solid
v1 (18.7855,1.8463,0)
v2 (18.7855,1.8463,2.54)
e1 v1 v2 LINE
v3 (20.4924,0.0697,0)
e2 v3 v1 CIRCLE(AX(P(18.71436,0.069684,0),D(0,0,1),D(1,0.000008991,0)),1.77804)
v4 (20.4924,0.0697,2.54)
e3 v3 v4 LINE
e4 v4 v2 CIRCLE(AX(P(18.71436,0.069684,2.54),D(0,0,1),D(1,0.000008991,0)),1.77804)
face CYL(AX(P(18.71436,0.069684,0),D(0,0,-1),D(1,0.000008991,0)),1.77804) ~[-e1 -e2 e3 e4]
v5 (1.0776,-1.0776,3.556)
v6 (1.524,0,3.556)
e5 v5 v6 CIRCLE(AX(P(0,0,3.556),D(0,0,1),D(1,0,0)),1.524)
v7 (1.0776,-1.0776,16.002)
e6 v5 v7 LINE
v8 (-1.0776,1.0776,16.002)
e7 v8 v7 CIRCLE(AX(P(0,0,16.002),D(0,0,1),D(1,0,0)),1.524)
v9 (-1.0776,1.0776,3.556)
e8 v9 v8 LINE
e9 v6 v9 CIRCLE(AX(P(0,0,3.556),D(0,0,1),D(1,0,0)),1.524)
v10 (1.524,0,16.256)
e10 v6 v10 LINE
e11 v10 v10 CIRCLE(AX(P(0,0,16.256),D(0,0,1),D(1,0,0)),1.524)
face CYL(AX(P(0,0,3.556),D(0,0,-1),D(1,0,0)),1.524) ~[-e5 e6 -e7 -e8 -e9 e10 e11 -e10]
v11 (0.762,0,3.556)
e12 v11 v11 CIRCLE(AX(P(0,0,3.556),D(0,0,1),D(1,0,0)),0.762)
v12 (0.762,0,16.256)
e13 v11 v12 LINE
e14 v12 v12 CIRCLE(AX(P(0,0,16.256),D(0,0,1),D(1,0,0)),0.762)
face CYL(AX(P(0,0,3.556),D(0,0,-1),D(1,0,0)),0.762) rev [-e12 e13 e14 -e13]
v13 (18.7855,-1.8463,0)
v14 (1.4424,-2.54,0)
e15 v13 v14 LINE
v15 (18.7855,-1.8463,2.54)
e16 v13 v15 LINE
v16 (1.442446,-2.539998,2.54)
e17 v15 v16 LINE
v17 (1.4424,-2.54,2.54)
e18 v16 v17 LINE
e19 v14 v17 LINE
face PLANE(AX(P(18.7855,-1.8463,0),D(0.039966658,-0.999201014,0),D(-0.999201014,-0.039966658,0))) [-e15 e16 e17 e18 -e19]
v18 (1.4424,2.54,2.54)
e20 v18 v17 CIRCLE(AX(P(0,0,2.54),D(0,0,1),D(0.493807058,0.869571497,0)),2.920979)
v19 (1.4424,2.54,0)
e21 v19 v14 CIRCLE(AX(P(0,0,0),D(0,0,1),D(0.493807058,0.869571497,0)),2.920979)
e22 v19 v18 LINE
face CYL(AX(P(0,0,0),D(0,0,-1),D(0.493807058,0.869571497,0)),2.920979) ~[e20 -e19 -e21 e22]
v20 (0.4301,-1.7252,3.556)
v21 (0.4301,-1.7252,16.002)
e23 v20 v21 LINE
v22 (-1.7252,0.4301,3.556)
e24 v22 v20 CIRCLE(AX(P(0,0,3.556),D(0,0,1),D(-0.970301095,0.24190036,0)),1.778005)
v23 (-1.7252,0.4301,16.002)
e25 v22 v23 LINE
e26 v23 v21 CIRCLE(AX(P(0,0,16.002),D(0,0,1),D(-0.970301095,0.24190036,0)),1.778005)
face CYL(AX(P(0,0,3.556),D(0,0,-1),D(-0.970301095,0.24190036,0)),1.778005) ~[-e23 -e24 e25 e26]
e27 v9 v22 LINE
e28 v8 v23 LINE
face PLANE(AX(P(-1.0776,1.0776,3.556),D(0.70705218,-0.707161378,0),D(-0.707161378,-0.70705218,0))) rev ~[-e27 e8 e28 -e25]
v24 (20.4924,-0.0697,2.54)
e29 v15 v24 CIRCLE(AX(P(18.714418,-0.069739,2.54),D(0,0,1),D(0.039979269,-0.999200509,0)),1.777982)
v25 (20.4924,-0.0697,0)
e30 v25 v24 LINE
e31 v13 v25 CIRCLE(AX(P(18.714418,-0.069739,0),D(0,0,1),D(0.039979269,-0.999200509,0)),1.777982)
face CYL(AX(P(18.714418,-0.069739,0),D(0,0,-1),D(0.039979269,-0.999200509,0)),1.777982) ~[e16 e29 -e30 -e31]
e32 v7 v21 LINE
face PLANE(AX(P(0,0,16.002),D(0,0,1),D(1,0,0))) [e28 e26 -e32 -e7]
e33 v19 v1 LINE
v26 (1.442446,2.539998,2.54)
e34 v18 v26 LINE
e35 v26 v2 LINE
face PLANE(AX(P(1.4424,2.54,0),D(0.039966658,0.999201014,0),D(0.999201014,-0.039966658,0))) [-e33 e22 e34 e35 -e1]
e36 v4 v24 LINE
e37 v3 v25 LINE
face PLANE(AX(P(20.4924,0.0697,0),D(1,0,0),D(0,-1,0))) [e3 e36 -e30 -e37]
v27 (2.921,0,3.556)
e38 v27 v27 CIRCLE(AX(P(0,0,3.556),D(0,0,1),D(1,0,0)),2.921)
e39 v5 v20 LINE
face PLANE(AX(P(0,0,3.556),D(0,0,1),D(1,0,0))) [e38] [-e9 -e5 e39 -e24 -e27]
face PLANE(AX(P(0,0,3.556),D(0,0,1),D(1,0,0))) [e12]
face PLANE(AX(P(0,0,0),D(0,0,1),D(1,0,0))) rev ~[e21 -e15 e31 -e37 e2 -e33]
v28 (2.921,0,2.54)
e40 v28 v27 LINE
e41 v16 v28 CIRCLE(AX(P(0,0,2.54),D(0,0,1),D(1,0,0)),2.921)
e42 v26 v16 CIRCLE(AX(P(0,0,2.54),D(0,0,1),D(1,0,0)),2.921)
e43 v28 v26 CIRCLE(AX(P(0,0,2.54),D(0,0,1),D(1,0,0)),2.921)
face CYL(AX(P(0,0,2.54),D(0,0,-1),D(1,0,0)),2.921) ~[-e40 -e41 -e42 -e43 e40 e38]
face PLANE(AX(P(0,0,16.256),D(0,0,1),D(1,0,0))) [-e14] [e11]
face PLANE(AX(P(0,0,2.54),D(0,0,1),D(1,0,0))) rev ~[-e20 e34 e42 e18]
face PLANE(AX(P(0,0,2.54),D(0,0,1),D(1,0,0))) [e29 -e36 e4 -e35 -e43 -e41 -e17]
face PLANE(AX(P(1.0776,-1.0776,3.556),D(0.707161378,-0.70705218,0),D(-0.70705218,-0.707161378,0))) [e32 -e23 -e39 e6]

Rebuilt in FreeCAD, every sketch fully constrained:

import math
import FreeCAD as App
import Part
import Sketcher
from FreeCAD import Vector
Q = App.Units.Quantity

doc = App.newDocument("Part")
body = doc.addObject("PartDesign::Body", "Body")

# Sketch on XY plane
sketch1 = body.newObject("Sketcher::SketchObject", "Sketch")
sketch1.AttachmentSupport = (doc.getObject("XY_Plane"), [""])
sketch1.MapMode = "FlatFace"
sketch1.addGeometry([
    Part.LineSegment(Vector(18.79, 1.85, 0), Vector(1.44, 2.54, 0)),  # 0
    Part.ArcOfCircle(Part.Circle(Vector(0, 0, 0), Vector(0, 0, 1), 2.92), math.radians(60), math.radians(300)),  # 1
    Part.LineSegment(Vector(1.44, -2.54, 0), Vector(18.79, -1.85, 0)),  # 2
    Part.ArcOfCircle(Part.Circle(Vector(18.71, -0.07, 0), Vector(0, 0, 1), 1.78), math.radians(-88), math.radians(0)),  # 3
    Part.LineSegment(Vector(20.49, -0.07, 0), Vector(20.49, 0.07, 0)),  # 4
    Part.ArcOfCircle(Part.Circle(Vector(18.71, 0.07, 0), Vector(0, 0, 1), 1.78), math.radians(0), math.radians(88)),  # 5
], False)
sketch1.addConstraint([
    Sketcher.Constraint("Coincident", 0, 2, 1, 1),
    Sketcher.Constraint("Coincident", 1, 2, 2, 1),
    Sketcher.Constraint("Tangent", 2, 2, 3, 1),
    Sketcher.Constraint("Tangent", 3, 2, 4, 1),
    Sketcher.Constraint("Tangent", 4, 2, 5, 1),
    Sketcher.Constraint("Tangent", 5, 2, 0, 1),
    Sketcher.Constraint("Vertical", 4),
    Sketcher.Constraint("Coincident", 1, 3, -1, 1),
    Sketcher.Constraint("Equal", 3, 5),
    Sketcher.Constraint("Symmetric", 2, 2, 5, 2, -1),
    Sketcher.Constraint("Radius", 3, Q("0.07 in")),
    Sketcher.Constraint("Radius", 1, Q("0.115 in")),
    Sketcher.Constraint("DistanceY", 1, 2, 0, 2, Q("0.2 in")),
    Sketcher.Constraint("DistanceX", 1, 2, 3, 2, Q("0.75 in")),
    Sketcher.Constraint("Angle", 0, Q("177.7095 deg")),
])
pad1 = body.newObject("PartDesign::Pad", "Pad")
pad1.Profile = sketch1
pad1.Length = Q("0.1 in")

# Sketch on XY plane
sketch2 = body.newObject("Sketcher::SketchObject", "Sketch001")
sketch2.AttachmentSupport = (doc.getObject("XY_Plane"), [""])
sketch2.MapMode = "FlatFace"
sketch2.AttachmentOffset = App.Placement(Vector(0, 0, 0.1 * 25.4), App.Rotation())
sketch2.addGeometry(Part.Circle(Vector(0, 0, 0), Vector(0, 0, 1), 2.9), False)
sketch2.addConstraint([
    Sketcher.Constraint("Coincident", 0, 3, -1, 1),
    Sketcher.Constraint("Diameter", 0, Q("0.23 in")),
])
pad2 = body.newObject("PartDesign::Pad", "Pad001")
pad2.Profile = sketch2
pad2.Length = Q("0.04 in")

# Sketch on XY plane
sketch3 = body.newObject("Sketcher::SketchObject", "Sketch002")
sketch3.AttachmentSupport = (doc.getObject("XY_Plane"), [""])
sketch3.MapMode = "FlatFace"
sketch3.AttachmentOffset = App.Placement(Vector(0, 0, 0.14 * 25.4), App.Rotation())
sketch3.addGeometry([
    Part.Circle(Vector(0, 0, 0), Vector(0, 0, 1), 1.5),
    Part.Circle(Vector(0, 0, 0), Vector(0, 0, 1), 0.8),
], False)
sketch3.addConstraint([
    Sketcher.Constraint("Coincident", 0, 3, -1, 1),
    Sketcher.Constraint("Coincident", 1, 3, -1, 1),
    Sketcher.Constraint("Diameter", 0, Q("0.12 in")),
    Sketcher.Constraint("Diameter", 1, Q("0.06 in")),
])
pad3 = body.newObject("PartDesign::Pad", "Pad002")
pad3.Profile = sketch3
pad3.Length = Q("0.5 in")

# Sketch on XY plane
sketch4 = body.newObject("Sketcher::SketchObject", "Sketch003")
sketch4.AttachmentSupport = (doc.getObject("XY_Plane"), [""])
sketch4.MapMode = "FlatFace"
sketch4.AttachmentOffset = App.Placement(Vector(0, 0, 0.14 * 25.4), App.Rotation())
sketch4.addGeometry([
    Part.ArcOfCircle(Part.Circle(Vector(0, 0, 0), Vector(0, 0, 1), 1.5), math.radians(135), math.radians(315)),
    Part.LineSegment(Vector(-1.1, 1.1, 0), Vector(-1.7, 0.4, 0)),
    Part.ArcOfCircle(Part.Circle(Vector(0, 0, 0), Vector(0, 0, 1), 1.8), math.radians(166), math.radians(284)),
    Part.LineSegment(Vector(0.4, -1.7, 0), Vector(1.1, -1.1, 0)),
], False)
sketch4.addConstraint([
    Sketcher.Constraint("Tangent", 0, 1, 1, 1),
    Sketcher.Constraint("Coincident", 1, 2, 2, 1),
    Sketcher.Constraint("Coincident", 2, 2, 3, 1),
    Sketcher.Constraint("Tangent", 3, 2, 0, 2),
    Sketcher.Constraint("Coincident", 0, 3, -1, 1),
    Sketcher.Constraint("Coincident", 2, 3, -1, 1),
    Sketcher.Constraint("Parallel", 1, 3),
    Sketcher.Constraint("Radius", 0, Q("0.06 in")),
    Sketcher.Constraint("Radius", 2, Q("0.07 in")),
    Sketcher.Constraint("DistanceX", 1, 2, 0, 1, Q("0.0255 in")),
])
pad4 = body.newObject("PartDesign::Pad", "Pad003")
pad4.Profile = sketch4
pad4.Length = Q("0.49 in")

doc.recompute()
